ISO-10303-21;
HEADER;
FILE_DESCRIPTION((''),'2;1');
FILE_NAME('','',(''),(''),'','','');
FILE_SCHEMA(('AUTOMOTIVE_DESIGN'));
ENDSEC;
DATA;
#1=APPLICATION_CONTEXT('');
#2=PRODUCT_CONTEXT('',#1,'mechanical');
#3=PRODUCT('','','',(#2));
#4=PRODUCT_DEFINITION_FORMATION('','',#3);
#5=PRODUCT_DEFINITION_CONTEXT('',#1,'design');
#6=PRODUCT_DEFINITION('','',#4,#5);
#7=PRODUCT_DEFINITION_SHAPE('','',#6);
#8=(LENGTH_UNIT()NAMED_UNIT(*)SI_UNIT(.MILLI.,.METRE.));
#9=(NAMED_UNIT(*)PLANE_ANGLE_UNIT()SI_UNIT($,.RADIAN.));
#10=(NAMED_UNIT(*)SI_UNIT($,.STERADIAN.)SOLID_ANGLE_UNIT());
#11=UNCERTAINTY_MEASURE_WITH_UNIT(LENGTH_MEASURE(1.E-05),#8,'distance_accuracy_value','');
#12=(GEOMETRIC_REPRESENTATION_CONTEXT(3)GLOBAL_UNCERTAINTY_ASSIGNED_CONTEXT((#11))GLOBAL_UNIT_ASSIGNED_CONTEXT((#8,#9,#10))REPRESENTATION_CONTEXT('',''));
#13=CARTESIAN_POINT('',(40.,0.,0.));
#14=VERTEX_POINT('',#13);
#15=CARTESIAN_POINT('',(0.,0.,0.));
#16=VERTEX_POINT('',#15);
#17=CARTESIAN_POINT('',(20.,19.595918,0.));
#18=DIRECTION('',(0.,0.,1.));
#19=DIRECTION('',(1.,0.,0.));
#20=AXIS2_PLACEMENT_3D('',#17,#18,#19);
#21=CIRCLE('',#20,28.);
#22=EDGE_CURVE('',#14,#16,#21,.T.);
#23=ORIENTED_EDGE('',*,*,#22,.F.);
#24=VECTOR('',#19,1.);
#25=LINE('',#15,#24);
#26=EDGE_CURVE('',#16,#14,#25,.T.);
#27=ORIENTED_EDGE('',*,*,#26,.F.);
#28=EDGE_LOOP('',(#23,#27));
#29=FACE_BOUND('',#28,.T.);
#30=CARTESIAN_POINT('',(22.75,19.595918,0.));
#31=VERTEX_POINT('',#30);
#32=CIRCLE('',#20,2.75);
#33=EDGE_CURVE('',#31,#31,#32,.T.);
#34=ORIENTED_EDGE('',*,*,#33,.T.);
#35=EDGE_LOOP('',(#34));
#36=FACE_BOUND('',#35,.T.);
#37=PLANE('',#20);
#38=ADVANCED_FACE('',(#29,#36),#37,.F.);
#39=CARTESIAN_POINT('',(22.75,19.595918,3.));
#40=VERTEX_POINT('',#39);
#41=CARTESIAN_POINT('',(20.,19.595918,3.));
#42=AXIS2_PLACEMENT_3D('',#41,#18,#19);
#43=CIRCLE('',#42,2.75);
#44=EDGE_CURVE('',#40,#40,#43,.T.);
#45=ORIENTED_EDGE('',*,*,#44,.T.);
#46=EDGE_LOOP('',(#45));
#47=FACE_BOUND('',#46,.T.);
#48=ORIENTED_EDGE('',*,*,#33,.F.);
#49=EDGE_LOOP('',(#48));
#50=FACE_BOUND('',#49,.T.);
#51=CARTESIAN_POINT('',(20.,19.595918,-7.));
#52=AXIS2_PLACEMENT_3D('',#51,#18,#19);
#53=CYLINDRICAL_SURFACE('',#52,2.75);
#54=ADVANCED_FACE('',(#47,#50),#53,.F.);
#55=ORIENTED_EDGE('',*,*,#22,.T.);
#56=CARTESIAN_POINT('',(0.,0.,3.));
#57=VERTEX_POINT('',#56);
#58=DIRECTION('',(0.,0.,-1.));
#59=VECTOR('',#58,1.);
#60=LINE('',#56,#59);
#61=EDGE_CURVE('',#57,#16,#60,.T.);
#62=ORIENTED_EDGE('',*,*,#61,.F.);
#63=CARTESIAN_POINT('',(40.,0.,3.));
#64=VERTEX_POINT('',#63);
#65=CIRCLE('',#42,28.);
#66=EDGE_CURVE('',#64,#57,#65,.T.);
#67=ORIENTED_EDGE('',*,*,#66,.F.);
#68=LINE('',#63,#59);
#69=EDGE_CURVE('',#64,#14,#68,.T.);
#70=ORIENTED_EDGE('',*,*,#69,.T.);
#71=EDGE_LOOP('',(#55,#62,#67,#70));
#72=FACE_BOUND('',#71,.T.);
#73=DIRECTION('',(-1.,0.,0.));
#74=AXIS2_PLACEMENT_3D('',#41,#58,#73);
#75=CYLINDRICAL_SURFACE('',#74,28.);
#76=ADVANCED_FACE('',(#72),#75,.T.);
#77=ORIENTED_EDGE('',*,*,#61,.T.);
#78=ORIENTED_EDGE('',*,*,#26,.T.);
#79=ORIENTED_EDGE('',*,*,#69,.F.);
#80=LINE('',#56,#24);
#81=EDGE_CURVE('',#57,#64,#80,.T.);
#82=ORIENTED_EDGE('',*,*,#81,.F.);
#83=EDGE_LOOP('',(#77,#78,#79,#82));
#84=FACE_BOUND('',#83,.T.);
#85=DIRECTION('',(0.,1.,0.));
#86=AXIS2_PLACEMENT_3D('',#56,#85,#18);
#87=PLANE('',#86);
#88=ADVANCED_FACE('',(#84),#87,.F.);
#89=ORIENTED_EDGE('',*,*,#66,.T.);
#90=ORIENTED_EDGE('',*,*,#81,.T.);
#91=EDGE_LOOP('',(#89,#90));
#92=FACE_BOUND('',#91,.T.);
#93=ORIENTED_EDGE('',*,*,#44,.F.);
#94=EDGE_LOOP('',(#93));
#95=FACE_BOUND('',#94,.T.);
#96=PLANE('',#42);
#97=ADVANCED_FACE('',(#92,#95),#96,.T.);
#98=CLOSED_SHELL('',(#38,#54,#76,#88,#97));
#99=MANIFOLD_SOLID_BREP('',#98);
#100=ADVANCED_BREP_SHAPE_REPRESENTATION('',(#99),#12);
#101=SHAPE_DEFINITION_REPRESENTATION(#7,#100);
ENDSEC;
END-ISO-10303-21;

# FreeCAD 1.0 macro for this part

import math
import FreeCAD as App
import Part
import Sketcher
from FreeCAD import Vector
Q = App.Units.Quantity

doc = App.newDocument("Part")
body = doc.addObject("PartDesign::Body", "Body")

sketch1 = doc.addObject("Sketcher::SketchObject", "Sketch")
body.addObject(sketch1)
sketch1.AttachmentSupport = (doc.XY_Plane, [""])
sketch1.MapMode = "FlatFace"
sketch1.addGeometry([
    Part.LineSegment(Vector(0, 0, 0), Vector(40, 0, 0)),
    Part.ArcOfCircle(Part.Circle(Vector(20, 19.595918, 0), Vector(0, 0, 1), 28), math.radians(-44.415309), math.radians(224.415309)),
], False)
sketch1.addConstraint([
    Sketcher.Constraint("Coincident", 0, 1, 1, 2),
    Sketcher.Constraint("Coincident", 1, 1, 0, 2),
    Sketcher.Constraint("Horizontal", 0),
    Sketcher.Constraint("Coincident", 0, 1, -1, 1),
    Sketcher.Constraint("Radius", 1, Q("28 mm")),
    Sketcher.Constraint("DistanceX", 0, 1, 0, 2, Q("40 mm")),
])
pad1 = doc.addObject("PartDesign::Pad", "Pad")
body.addObject(pad1)
pad1.Profile = sketch1
pad1.Length = 3

sketch2 = doc.addObject("Sketcher::SketchObject", "Sketch001")
body.addObject(sketch2)
sketch2.AttachmentSupport = (doc.XY_Plane, [""])
sketch2.MapMode = "FlatFace"
sketch2.AttachmentOffset = App.Placement(Vector(0, 0, 3), App.Rotation())
sketch2.addGeometry(Part.Circle(Vector(20, 19.595918, 0), Vector(0, 0, 1), 2.75), False)
sketch2.addConstraint([
    Sketcher.Constraint("Diameter", 0, Q("5.5 mm")),
    Sketcher.Constraint("DistanceX", -1, 1, 0, 3, Q("20 mm")),
    Sketcher.Constraint("DistanceY", -1, 1, 0, 3, Q("19.595918 mm")),
])
pocket1 = doc.addObject("PartDesign::Pocket", "Pocket")
body.addObject(pocket1)
pocket1.Profile = sketch2
pocket1.Length = 10

doc.recompute()
